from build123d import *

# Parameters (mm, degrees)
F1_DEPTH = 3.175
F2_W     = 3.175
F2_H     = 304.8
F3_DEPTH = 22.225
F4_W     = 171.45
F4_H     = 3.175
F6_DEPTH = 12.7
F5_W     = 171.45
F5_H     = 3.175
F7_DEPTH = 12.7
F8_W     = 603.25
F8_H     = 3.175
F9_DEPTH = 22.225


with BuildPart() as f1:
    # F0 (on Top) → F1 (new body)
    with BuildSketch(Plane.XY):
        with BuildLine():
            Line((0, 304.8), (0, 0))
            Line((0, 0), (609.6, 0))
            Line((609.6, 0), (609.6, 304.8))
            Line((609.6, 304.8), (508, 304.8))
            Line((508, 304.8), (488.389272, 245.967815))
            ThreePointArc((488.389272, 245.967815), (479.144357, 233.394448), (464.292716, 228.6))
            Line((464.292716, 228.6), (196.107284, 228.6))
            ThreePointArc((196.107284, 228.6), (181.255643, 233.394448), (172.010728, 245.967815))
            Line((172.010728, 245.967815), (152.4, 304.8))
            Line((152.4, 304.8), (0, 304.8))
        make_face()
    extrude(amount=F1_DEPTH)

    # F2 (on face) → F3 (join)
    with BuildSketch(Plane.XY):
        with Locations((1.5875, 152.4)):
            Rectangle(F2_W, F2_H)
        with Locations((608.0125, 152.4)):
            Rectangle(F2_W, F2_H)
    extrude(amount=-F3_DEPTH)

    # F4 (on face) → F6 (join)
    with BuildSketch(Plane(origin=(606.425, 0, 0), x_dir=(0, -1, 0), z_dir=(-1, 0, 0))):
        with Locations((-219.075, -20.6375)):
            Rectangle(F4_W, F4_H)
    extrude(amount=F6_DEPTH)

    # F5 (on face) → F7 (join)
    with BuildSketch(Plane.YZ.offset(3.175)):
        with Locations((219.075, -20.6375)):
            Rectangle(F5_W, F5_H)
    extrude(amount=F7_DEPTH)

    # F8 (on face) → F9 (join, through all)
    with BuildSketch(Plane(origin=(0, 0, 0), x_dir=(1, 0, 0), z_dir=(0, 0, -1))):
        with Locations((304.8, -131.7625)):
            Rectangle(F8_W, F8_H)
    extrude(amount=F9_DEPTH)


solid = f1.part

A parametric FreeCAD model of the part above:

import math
import FreeCAD as App
import Part
import Sketcher
from FreeCAD import Vector
Q = App.Units.Quantity


def add_polygon(sketch, points):
    """Adds a closed chain of lines whose ends are joined by coincident constraints."""
    first, n = sketch.GeometryCount, len(points)
    for a, b in zip(points, points[1:] + points[:1]):
        sketch.addGeometry(Part.LineSegment(App.Vector(*a, 0), App.Vector(*b, 0)), False)
    for i in range(n):
        sketch.addConstraint(Sketcher.Constraint("Coincident", first + i, 2, first + (i + 1) % n, 1))

doc = App.newDocument("Part")
body = doc.addObject("PartDesign::Body", "Body")

# Sketch on XY plane
sketch1 = body.newObject("Sketcher::SketchObject", "Sketch")
sketch1.AttachmentSupport = (doc.getObject("XY_Plane"), [""])
sketch1.MapMode = "FlatFace"
sketch1.addGeometry([
    Part.LineSegment(Vector(0, 305, 0), Vector(0, 0, 0)),  # 0
    Part.LineSegment(Vector(0, 0, 0), Vector(610, 0, 0)),  # 1
    Part.LineSegment(Vector(610, 0, 0), Vector(610, 305, 0)),  # 2
    Part.LineSegment(Vector(610, 305, 0), Vector(508, 305, 0)),  # 3
    Part.LineSegment(Vector(508, 305, 0), Vector(488, 246, 0)),  # 4
    Part.ArcOfCircle(Part.Circle(Vector(464, 254, 0), Vector(0, 0, 1), 25), math.radians(-90), math.radians(-18)),  # 5
    Part.LineSegment(Vector(464, 229, 0), Vector(196, 229, 0)),  # 6
    Part.ArcOfCircle(Part.Circle(Vector(196, 254, 0), Vector(0, 0, 1), 25), math.radians(-162), math.radians(-90)),  # 7
    Part.LineSegment(Vector(172, 246, 0), Vector(152, 305, 0)),  # 8
    Part.LineSegment(Vector(152, 305, 0), Vector(0, 305, 0)),  # 9
], False)
sketch1.addConstraint([
    Sketcher.Constraint("Coincident", 0, 2, 1, 1),
    Sketcher.Constraint("Coincident", 1, 2, 2, 1),
    Sketcher.Constraint("Coincident", 2, 2, 3, 1),
    Sketcher.Constraint("Coincident", 3, 2, 4, 1),
    Sketcher.Constraint("Tangent", 4, 2, 5, 2),
    Sketcher.Constraint("Tangent", 5, 1, 6, 1),
    Sketcher.Constraint("Tangent", 6, 2, 7, 2),
    Sketcher.Constraint("Tangent", 7, 1, 8, 1),
    Sketcher.Constraint("Coincident", 8, 2, 9, 1),
    Sketcher.Constraint("Coincident", 9, 2, 0, 1),
    Sketcher.Constraint("Vertical", 0),
    Sketcher.Constraint("Horizontal", 1),
    Sketcher.Constraint("Vertical", 2),
    Sketcher.Constraint("Horizontal", 3),
    Sketcher.Constraint("Horizontal", 6),
    Sketcher.Constraint("Horizontal", 9),
    Sketcher.Constraint("Coincident", 0, 2, -1, 1),
    Sketcher.Constraint("Equal", 5, 7),
    Sketcher.Constraint("Horizontal", 4, 2, 7, 1),
    Sketcher.Constraint("Horizontal", 3, 2, 8, 2),
    Sketcher.Constraint("Radius", 5, Q("1 in")),
    Sketcher.Constraint("DistanceX", 1, 1, 1, 2, Q("24 in")),
    Sketcher.Constraint("DistanceX", 3, 2, 3, 1, Q("4 in")),
    Sketcher.Constraint("DistanceX", 9, 2, 9, 1, Q("6 in")),
    Sketcher.Constraint("DistanceY", 0, 2, 0, 1, Q("12 in")),
    Sketcher.Constraint("DistanceY", -1, 1, 5, 3, Q("10 in")),
    Sketcher.Constraint("DistanceX", 6, 2, 6, 1, 268.185432),
])
pad1 = body.newObject("PartDesign::Pad", "Pad")
pad1.Profile = sketch1
pad1.Length = Q("0.125 in")

# Sketch on XY plane
sketch2 = body.newObject("Sketcher::SketchObject", "Sketch001")
sketch2.AttachmentSupport = (doc.getObject("XY_Plane"), [""])
sketch2.MapMode = "FlatFace"
add_polygon(sketch2, [(0, 304.8), (0, 0), (3.2, 0), (3.2, 304.8)])  # lines 0-3
add_polygon(sketch2, [(606.4, 304.8), (606.4, 0), (609.6, 0), (609.6, 304.8)])  # lines 4-7
sketch2.addConstraint([
    Sketcher.Constraint("Vertical", 0),
    Sketcher.Constraint("Horizontal", 1),
    Sketcher.Constraint("Vertical", 2),
    Sketcher.Constraint("Horizontal", 3),
    Sketcher.Constraint("Vertical", 4),
    Sketcher.Constraint("Horizontal", 5),
    Sketcher.Constraint("Vertical", 6),
    Sketcher.Constraint("Horizontal", 7),
    Sketcher.Constraint("Coincident", 0, 2, -1, 1),
    Sketcher.Constraint("PointOnObject", 4, 2, -1),
    Sketcher.Constraint("Horizontal", 3, 2, 6, 2),
    Sketcher.Constraint("Equal", 3, 5),
    Sketcher.Constraint("DistanceY", 0, 2, 0, 1, Q("12 in")),
    Sketcher.Constraint("DistanceX", -1, 1, 5, 2, Q("24 in")),
    Sketcher.Constraint("DistanceX", 1, 1, 1, 2, Q("0.125 in")),
])
pad2 = body.newObject("PartDesign::Pad", "Pad001")
pad2.Profile = sketch2
pad2.Length = Q("0.875 in")
pad2.Reversed = True

# Sketch on YZ plane
sketch3 = body.newObject("Sketcher::SketchObject", "Sketch002")
sketch3.AttachmentSupport = (doc.getObject("YZ_Plane"), [""])
sketch3.MapMode = "FlatFace"
sketch3.AttachmentOffset = App.Placement(Vector(0, 0, 23.875 * 25.4), App.Rotation())
add_polygon(sketch3, [(304.8, -19.1), (304.8, -22.2), (133.3, -22.2), (133.3, -19.1)])  # lines 0-3
sketch3.addConstraint([
    Sketcher.Constraint("Vertical", 0),
    Sketcher.Constraint("Horizontal", 1),
    Sketcher.Constraint("Vertical", 2),
    Sketcher.Constraint("Horizontal", 3),
    Sketcher.Constraint("DistanceX", -1, 1, 0, 2, Q("12 in")),
    Sketcher.Constraint("DistanceX", 1, 2, 1, 1, Q("6.75 in")),
    Sketcher.Constraint("DistanceY", 0, 2, 0, 1, Q("0.125 in")),
    Sketcher.Constraint("DistanceY", 2, 2, -1, 1, Q("0.75 in")),
])
pad3 = body.newObject("PartDesign::Pad", "Pad002")
pad3.Profile = sketch3
pad3.Length = Q("0.5 in")
pad3.Reversed = True

# Sketch on YZ plane
sketch4 = body.newObject("Sketcher::SketchObject", "Sketch003")
sketch4.AttachmentSupport = (doc.getObject("YZ_Plane"), [""])
sketch4.MapMode = "FlatFace"
sketch4.AttachmentOffset = App.Placement(Vector(0, 0, 0.125 * 25.4), App.Rotation())
add_polygon(sketch4, [(133.3, -19.1), (133.3, -22.2), (304.8, -22.2), (304.8, -19.1)])  # lines 0-3
sketch4.addConstraint([
    Sketcher.Constraint("Vertical", 0),
    Sketcher.Constraint("Horizontal", 1),
    Sketcher.Constraint("Vertical", 2),
    Sketcher.Constraint("Horizontal", 3),
    Sketcher.Constraint("DistanceX", -1, 1, 1, 2, Q("12 in")),
    Sketcher.Constraint("DistanceX", 1, 1, 1, 2, Q("6.75 in")),
    Sketcher.Constraint("DistanceY", 0, 2, 0, 1, Q("0.125 in")),
    Sketcher.Constraint("DistanceY", 2, 2, -1, 1, Q("0.75 in")),
])
pad4 = body.newObject("PartDesign::Pad", "Pad003")
pad4.Profile = sketch4
pad4.Length = Q("0.5 in")

# Sketch on XY plane
sketch5 = body.newObject("Sketcher::SketchObject", "Sketch004")
sketch5.AttachmentSupport = (doc.getObject("XY_Plane"), [""])
sketch5.MapMode = "FlatFace"
add_polygon(sketch5, [(3.2, 130.2), (3.2, 133.3), (606.4, 133.3), (606.4, 130.2)])  # lines 0-3
sketch5.addConstraint([
    Sketcher.Constraint("Vertical", 0),
    Sketcher.Constraint("Horizontal", 1),
    Sketcher.Constraint("Vertical", 2),
    Sketcher.Constraint("Horizontal", 3),
    Sketcher.Constraint("DistanceX", 1, 1, 1, 2, Q("23.75 in")),
    Sketcher.Constraint("DistanceY", 0, 1, 0, 2, Q("0.125 in")),
    Sketcher.Constraint("DistanceY", -1, 1, 0, 2, Q("5.25 in")),
    Sketcher.Constraint("DistanceX", -1, 1, 0, 2, Q("0.125 in")),
])
pad5 = body.newObject("PartDesign::Pad", "Pad004")
pad5.Profile = sketch5
pad5.Length = Q("0.875 in")
pad5.Reversed = True

doc.recompute()
